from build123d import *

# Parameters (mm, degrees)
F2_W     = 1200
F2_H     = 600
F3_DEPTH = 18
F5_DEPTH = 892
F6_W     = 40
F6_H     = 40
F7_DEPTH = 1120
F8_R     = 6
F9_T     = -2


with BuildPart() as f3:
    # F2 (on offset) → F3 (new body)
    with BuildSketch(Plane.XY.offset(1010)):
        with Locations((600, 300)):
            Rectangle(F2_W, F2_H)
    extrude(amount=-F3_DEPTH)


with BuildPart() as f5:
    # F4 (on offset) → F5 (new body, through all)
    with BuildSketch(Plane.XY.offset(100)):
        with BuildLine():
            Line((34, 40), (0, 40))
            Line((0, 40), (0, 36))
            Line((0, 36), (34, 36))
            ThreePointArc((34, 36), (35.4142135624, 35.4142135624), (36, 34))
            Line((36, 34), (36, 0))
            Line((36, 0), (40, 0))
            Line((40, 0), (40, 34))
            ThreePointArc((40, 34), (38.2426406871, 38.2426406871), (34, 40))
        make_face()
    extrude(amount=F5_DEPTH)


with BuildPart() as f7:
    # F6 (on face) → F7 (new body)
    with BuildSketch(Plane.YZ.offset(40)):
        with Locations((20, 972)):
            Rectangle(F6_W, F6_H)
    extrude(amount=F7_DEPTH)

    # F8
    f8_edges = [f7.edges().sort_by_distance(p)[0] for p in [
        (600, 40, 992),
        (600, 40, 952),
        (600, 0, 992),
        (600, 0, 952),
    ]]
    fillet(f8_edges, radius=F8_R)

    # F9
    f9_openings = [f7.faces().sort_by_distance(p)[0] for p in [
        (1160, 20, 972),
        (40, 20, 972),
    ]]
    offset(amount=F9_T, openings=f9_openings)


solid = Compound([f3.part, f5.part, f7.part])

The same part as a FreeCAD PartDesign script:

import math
import FreeCAD as App
import Part
import Sketcher
from FreeCAD import Vector
Q = App.Units.Quantity


def edges_at(feature, points):
    """Names of the edges that pass closest to the given points."""
    edges = feature.Shape.Edges
    near = lambda p: min(range(len(edges)), key=lambda i: edges[i].distToShape(Part.Vertex(*p))[0])
    return sorted({f"Edge{near(p) + 1}" for p in points})


def faces_at(feature, points):
    """Names of the faces that lie closest to the given points."""
    faces = feature.Shape.Faces
    near = lambda p: min(range(len(faces)), key=lambda i: faces[i].distToShape(Part.Vertex(*p))[0])
    return sorted({f"Face{near(p) + 1}" for p in points})


def add_polygon(sketch, points):
    """Adds a closed chain of lines whose ends are joined by coincident constraints."""
    first, n = sketch.GeometryCount, len(points)
    for a, b in zip(points, points[1:] + points[:1]):
        sketch.addGeometry(Part.LineSegment(App.Vector(*a, 0), App.Vector(*b, 0)), False)
    for i in range(n):
        sketch.addConstraint(Sketcher.Constraint("Coincident", first + i, 2, first + (i + 1) % n, 1))

doc = App.newDocument("Part")
params = doc.addObject("Spreadsheet::Sheet", "Params")
for row, (alias, value) in enumerate([
    ("sketch1_width", "1200 mm"),
    ("sketch1_height", "600 mm"),
    ("pad1_length", "18 mm"),
    ("sketch2_radius", "2 mm"),
    ("sketch2_radius2", "6 mm"),
    ("sketch2_width", "34 mm"),
    ("pad2_length", "892 mm"),
    ("sketch3_width", "40 mm"),
    ("pad3_length", "1120 mm"),
    ("fillet_radius", "6 mm"),
    ("thickness_wall", "2 mm"),
], start=1):
    params.set(f"A{row}", alias)
    params.set(f"B{row}", "=" + value)
    params.setAlias(f"B{row}", alias)

body = doc.addObject("PartDesign::Body", "Body")

sketch1 = body.newObject("Sketcher::SketchObject", "Sketch")
sketch1.AttachmentSupport = (doc.getObject("XY_Plane"), [""])
sketch1.MapMode = "FlatFace"
sketch1.AttachmentOffset = App.Placement(Vector(0, 0, 1010), App.Rotation())
add_polygon(sketch1, [(0, 600), (0, 0), (1200, 0), (1200, 600)])
sketch1.addConstraint([
    Sketcher.Constraint("Vertical", 0),
    Sketcher.Constraint("Horizontal", 1),
    Sketcher.Constraint("Vertical", 2),
    Sketcher.Constraint("Horizontal", 3),
    Sketcher.Constraint("Coincident", 0, 2, -1, 1),
    Sketcher.Constraint("DistanceX", 1, 1, 1, 2, Q("1200 mm")),
    Sketcher.Constraint("DistanceY", 0, 2, 0, 1, Q("600 mm")),
])
sketch1.setExpression("Constraints[9]", "Params.sketch1_width")
sketch1.setExpression("Constraints[10]", "Params.sketch1_height")
pad1 = body.newObject("PartDesign::Pad", "Pad")
pad1.Profile = sketch1
pad1.setExpression("Length", "Params.pad1_length")
pad1.Reversed = True
body2 = doc.addObject("PartDesign::Body", "Body001")

sketch2 = body2.newObject("Sketcher::SketchObject", "Sketch001")
sketch2.AttachmentSupport = (doc.getObject("XY_Plane001"), [""])
sketch2.MapMode = "FlatFace"
sketch2.AttachmentOffset = App.Placement(Vector(0, 0, 100), App.Rotation())
sketch2.addGeometry([
    Part.LineSegment(Vector(34, 40, 0), Vector(0, 40, 0)),
    Part.LineSegment(Vector(0, 40, 0), Vector(0, 36, 0)),
    Part.LineSegment(Vector(0, 36, 0), Vector(34, 36, 0)),
    Part.ArcOfCircle(Part.Circle(Vector(34, 34, 0), Vector(0, 0, 1), 2), math.radians(0), math.radians(90)),
    Part.LineSegment(Vector(36, 34, 0), Vector(36, 0, 0)),
    Part.LineSegment(Vector(36, 0, 0), Vector(40, 0, 0)),
    Part.LineSegment(Vector(40, 0, 0), Vector(40, 34, 0)),
    Part.ArcOfCircle(Part.Circle(Vector(34, 34, 0), Vector(0, 0, 1), 6), math.radians(0), math.radians(90)),
], False)
sketch2.addConstraint([
    Sketcher.Constraint("Coincident", 0, 2, 1, 1),
    Sketcher.Constraint("Coincident", 1, 2, 2, 1),
    Sketcher.Constraint("Tangent", 2, 2, 3, 2),
    Sketcher.Constraint("Tangent", 3, 1, 4, 1),
    Sketcher.Constraint("Coincident", 4, 2, 5, 1),
    Sketcher.Constraint("Coincident", 5, 2, 6, 1),
    Sketcher.Constraint("Tangent", 6, 2, 7, 1),
    Sketcher.Constraint("Tangent", 7, 2, 0, 1),
    Sketcher.Constraint("Horizontal", 0),
    Sketcher.Constraint("Vertical", 1),
    Sketcher.Constraint("Horizontal", 2),
    Sketcher.Constraint("Vertical", 4),
    Sketcher.Constraint("Horizontal", 5),
    Sketcher.Constraint("Vertical", 6),
    Sketcher.Constraint("Coincident", 7, 3, 3, 3),
    Sketcher.Constraint("PointOnObject", 0, 2, -2),
    Sketcher.Constraint("PointOnObject", 4, 2, -1),
    Sketcher.Constraint("Equal", 2, 4),
    Sketcher.Constraint("Radius", 3, Q("2 mm")),
    Sketcher.Constraint("Radius", 7, Q("6 mm")),
    Sketcher.Constraint("DistanceX", 0, 2, 0, 1, Q("34 mm")),
])
sketch2.setExpression("Constraints[18]", "Params.sketch2_radius")
sketch2.setExpression("Constraints[19]", "Params.sketch2_radius2")
sketch2.setExpression("Constraints[20]", "Params.sketch2_width")
pad2 = body2.newObject("PartDesign::Pad", "Pad001")
pad2.Profile = sketch2
pad2.setExpression("Length", "Params.pad2_length")
body3 = doc.addObject("PartDesign::Body", "Body002")

sketch3 = body3.newObject("Sketcher::SketchObject", "Sketch002")
sketch3.AttachmentSupport = (doc.getObject("YZ_Plane002"), [""])
sketch3.MapMode = "FlatFace"
sketch3.AttachmentOffset = App.Placement(Vector(0, 0, 40), App.Rotation())
add_polygon(sketch3, [(0, 992), (0, 952), (40, 952), (40, 992)])
sketch3.addConstraint([
    Sketcher.Constraint("Vertical", 0),
    Sketcher.Constraint("Horizontal", 1),
    Sketcher.Constraint("Vertical", 2),
    Sketcher.Constraint("Horizontal", 3),
    Sketcher.Constraint("PointOnObject", 0, 2, -2),
    Sketcher.Constraint("Equal", 3, 0),
    Sketcher.Constraint("DistanceX", 1, 1, 1, 2, Q("40 mm")),
    Sketcher.Constraint("DistanceY", -1, 1, 0, 2, Q("952 mm")),
])
sketch3.setExpression("Constraints[10]", "Params.sketch3_width")
pad3 = body3.newObject("PartDesign::Pad", "Pad002")
pad3.Profile = sketch3
pad3.setExpression("Length", "Params.pad3_length")
doc.recompute()

fillet = body3.newObject("PartDesign::Fillet", "Fillet")
fillet.Base = (pad3, edges_at(pad3, [
    (600, 40, 992),
    (600, 40, 952),
    (600, 0, 992),
    (600, 0, 952),
]))
fillet.setExpression("Radius", "Params.fillet_radius")
doc.recompute()

thickness = body3.newObject("PartDesign::Thickness", "Thickness")
thickness.Base = (fillet, faces_at(fillet, [(1160, 20, 972), (40, 20, 972)]))
thickness.setExpression("Value", "Params.thickness_wall")
thickness.Reversed = True
thickness.Join = "Arc"

doc.recompute()
